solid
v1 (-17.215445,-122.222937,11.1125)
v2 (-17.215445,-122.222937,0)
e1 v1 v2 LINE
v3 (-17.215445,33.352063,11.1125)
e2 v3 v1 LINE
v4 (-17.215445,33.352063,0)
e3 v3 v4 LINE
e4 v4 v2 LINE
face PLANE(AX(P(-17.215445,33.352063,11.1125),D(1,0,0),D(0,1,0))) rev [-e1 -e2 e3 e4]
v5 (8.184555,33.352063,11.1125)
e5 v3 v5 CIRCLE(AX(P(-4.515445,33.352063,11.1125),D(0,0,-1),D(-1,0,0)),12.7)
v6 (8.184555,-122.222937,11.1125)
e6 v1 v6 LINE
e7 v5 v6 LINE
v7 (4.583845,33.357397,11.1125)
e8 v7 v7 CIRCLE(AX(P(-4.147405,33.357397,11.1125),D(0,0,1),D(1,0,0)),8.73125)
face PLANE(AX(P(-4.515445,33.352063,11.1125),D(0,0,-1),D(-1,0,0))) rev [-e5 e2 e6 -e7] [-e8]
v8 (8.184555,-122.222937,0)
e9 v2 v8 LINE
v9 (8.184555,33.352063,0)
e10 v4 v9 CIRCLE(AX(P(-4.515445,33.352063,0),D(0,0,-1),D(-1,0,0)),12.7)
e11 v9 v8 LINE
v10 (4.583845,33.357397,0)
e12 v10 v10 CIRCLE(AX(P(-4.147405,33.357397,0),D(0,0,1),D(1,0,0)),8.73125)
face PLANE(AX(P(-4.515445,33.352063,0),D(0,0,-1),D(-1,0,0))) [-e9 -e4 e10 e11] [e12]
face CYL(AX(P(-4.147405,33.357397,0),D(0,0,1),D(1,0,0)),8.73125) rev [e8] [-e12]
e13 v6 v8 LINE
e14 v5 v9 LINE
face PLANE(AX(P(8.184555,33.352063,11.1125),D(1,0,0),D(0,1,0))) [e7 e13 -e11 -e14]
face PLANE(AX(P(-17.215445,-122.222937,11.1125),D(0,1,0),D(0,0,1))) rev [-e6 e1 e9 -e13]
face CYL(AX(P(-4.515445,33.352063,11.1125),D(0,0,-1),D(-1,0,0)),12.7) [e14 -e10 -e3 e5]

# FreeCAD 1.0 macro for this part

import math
import FreeCAD as App
import Part
import Sketcher
from FreeCAD import Vector
Q = App.Units.Quantity

doc = App.newDocument("Part")
body = doc.addObject("PartDesign::Body", "Body")

# Sketch on XY plane
sketch1 = body.newObject("Sketcher::SketchObject", "Sketch")
sketch1.AttachmentSupport = (doc.getObject("XY_Plane"), [""])
sketch1.MapMode = "FlatFace"
sketch1.addGeometry([
    Part.LineSegment(Vector(-17.215445, 33.352063, 0), Vector(-17.215445, -122.222937, 0)),
    Part.LineSegment(Vector(-17.215445, -122.222937, 0), Vector(8.184555, -122.222937, 0)),
    Part.LineSegment(Vector(8.184555, -122.222937, 0), Vector(8.184555, 33.352063, 0)),
    Part.ArcOfCircle(Part.Circle(Vector(-4.515445, 33.352063, 0), Vector(0, 0, 1), 12.7), math.radians(0), math.radians(180)),
], False)
sketch1.addConstraint([
    Sketcher.Constraint("Coincident", 0, 2, 1, 1),
    Sketcher.Constraint("Coincident", 1, 2, 2, 1),
    Sketcher.Constraint("Tangent", 2, 2, 3, 1),
    Sketcher.Constraint("Tangent", 3, 2, 0, 1),
    Sketcher.Constraint("Vertical", 0),
    Sketcher.Constraint("Horizontal", 1),
    Sketcher.Constraint("Vertical", 2),
    Sketcher.Constraint("Radius", 3, Q("0.5 in")),
    Sketcher.Constraint("DistanceY", 0, 2, 0, 1, Q("6.125 in")),
    Sketcher.Constraint("DistanceX", 3, 3, -1, 1, 4.515445),
    Sketcher.Constraint("DistanceY", -1, 1, 3, 3, 33.352063),
])
pad1 = body.newObject("PartDesign::Pad", "Pad")
pad1.Profile = sketch1
pad1.Length = Q("0.4375 in")

# Sketch on XY plane
sketch2 = body.newObject("Sketcher::SketchObject", "Sketch001")
sketch2.AttachmentSupport = (doc.getObject("XY_Plane"), [""])
sketch2.MapMode = "FlatFace"
sketch2.AttachmentOffset = App.Placement(Vector(0, 0, 0.4375 * 25.4), App.Rotation())
sketch2.addGeometry(Part.Circle(Vector(-4.147405, 33.357397, 0), Vector(0, 0, 1), 8.73125), False)
sketch2.addConstraint([
    Sketcher.Constraint("Diameter", 0, Q("0.6875 in")),
    Sketcher.Constraint("DistanceX", 0, 3, -1, 1, 4.147405),
    Sketcher.Constraint("DistanceY", -1, 1, 0, 3, 33.357397),
])
pocket1 = body.newObject("PartDesign::Pocket", "Pocket")
pocket1.Profile = sketch2
pocket1.Type = "ThroughAll"

doc.recompute()
